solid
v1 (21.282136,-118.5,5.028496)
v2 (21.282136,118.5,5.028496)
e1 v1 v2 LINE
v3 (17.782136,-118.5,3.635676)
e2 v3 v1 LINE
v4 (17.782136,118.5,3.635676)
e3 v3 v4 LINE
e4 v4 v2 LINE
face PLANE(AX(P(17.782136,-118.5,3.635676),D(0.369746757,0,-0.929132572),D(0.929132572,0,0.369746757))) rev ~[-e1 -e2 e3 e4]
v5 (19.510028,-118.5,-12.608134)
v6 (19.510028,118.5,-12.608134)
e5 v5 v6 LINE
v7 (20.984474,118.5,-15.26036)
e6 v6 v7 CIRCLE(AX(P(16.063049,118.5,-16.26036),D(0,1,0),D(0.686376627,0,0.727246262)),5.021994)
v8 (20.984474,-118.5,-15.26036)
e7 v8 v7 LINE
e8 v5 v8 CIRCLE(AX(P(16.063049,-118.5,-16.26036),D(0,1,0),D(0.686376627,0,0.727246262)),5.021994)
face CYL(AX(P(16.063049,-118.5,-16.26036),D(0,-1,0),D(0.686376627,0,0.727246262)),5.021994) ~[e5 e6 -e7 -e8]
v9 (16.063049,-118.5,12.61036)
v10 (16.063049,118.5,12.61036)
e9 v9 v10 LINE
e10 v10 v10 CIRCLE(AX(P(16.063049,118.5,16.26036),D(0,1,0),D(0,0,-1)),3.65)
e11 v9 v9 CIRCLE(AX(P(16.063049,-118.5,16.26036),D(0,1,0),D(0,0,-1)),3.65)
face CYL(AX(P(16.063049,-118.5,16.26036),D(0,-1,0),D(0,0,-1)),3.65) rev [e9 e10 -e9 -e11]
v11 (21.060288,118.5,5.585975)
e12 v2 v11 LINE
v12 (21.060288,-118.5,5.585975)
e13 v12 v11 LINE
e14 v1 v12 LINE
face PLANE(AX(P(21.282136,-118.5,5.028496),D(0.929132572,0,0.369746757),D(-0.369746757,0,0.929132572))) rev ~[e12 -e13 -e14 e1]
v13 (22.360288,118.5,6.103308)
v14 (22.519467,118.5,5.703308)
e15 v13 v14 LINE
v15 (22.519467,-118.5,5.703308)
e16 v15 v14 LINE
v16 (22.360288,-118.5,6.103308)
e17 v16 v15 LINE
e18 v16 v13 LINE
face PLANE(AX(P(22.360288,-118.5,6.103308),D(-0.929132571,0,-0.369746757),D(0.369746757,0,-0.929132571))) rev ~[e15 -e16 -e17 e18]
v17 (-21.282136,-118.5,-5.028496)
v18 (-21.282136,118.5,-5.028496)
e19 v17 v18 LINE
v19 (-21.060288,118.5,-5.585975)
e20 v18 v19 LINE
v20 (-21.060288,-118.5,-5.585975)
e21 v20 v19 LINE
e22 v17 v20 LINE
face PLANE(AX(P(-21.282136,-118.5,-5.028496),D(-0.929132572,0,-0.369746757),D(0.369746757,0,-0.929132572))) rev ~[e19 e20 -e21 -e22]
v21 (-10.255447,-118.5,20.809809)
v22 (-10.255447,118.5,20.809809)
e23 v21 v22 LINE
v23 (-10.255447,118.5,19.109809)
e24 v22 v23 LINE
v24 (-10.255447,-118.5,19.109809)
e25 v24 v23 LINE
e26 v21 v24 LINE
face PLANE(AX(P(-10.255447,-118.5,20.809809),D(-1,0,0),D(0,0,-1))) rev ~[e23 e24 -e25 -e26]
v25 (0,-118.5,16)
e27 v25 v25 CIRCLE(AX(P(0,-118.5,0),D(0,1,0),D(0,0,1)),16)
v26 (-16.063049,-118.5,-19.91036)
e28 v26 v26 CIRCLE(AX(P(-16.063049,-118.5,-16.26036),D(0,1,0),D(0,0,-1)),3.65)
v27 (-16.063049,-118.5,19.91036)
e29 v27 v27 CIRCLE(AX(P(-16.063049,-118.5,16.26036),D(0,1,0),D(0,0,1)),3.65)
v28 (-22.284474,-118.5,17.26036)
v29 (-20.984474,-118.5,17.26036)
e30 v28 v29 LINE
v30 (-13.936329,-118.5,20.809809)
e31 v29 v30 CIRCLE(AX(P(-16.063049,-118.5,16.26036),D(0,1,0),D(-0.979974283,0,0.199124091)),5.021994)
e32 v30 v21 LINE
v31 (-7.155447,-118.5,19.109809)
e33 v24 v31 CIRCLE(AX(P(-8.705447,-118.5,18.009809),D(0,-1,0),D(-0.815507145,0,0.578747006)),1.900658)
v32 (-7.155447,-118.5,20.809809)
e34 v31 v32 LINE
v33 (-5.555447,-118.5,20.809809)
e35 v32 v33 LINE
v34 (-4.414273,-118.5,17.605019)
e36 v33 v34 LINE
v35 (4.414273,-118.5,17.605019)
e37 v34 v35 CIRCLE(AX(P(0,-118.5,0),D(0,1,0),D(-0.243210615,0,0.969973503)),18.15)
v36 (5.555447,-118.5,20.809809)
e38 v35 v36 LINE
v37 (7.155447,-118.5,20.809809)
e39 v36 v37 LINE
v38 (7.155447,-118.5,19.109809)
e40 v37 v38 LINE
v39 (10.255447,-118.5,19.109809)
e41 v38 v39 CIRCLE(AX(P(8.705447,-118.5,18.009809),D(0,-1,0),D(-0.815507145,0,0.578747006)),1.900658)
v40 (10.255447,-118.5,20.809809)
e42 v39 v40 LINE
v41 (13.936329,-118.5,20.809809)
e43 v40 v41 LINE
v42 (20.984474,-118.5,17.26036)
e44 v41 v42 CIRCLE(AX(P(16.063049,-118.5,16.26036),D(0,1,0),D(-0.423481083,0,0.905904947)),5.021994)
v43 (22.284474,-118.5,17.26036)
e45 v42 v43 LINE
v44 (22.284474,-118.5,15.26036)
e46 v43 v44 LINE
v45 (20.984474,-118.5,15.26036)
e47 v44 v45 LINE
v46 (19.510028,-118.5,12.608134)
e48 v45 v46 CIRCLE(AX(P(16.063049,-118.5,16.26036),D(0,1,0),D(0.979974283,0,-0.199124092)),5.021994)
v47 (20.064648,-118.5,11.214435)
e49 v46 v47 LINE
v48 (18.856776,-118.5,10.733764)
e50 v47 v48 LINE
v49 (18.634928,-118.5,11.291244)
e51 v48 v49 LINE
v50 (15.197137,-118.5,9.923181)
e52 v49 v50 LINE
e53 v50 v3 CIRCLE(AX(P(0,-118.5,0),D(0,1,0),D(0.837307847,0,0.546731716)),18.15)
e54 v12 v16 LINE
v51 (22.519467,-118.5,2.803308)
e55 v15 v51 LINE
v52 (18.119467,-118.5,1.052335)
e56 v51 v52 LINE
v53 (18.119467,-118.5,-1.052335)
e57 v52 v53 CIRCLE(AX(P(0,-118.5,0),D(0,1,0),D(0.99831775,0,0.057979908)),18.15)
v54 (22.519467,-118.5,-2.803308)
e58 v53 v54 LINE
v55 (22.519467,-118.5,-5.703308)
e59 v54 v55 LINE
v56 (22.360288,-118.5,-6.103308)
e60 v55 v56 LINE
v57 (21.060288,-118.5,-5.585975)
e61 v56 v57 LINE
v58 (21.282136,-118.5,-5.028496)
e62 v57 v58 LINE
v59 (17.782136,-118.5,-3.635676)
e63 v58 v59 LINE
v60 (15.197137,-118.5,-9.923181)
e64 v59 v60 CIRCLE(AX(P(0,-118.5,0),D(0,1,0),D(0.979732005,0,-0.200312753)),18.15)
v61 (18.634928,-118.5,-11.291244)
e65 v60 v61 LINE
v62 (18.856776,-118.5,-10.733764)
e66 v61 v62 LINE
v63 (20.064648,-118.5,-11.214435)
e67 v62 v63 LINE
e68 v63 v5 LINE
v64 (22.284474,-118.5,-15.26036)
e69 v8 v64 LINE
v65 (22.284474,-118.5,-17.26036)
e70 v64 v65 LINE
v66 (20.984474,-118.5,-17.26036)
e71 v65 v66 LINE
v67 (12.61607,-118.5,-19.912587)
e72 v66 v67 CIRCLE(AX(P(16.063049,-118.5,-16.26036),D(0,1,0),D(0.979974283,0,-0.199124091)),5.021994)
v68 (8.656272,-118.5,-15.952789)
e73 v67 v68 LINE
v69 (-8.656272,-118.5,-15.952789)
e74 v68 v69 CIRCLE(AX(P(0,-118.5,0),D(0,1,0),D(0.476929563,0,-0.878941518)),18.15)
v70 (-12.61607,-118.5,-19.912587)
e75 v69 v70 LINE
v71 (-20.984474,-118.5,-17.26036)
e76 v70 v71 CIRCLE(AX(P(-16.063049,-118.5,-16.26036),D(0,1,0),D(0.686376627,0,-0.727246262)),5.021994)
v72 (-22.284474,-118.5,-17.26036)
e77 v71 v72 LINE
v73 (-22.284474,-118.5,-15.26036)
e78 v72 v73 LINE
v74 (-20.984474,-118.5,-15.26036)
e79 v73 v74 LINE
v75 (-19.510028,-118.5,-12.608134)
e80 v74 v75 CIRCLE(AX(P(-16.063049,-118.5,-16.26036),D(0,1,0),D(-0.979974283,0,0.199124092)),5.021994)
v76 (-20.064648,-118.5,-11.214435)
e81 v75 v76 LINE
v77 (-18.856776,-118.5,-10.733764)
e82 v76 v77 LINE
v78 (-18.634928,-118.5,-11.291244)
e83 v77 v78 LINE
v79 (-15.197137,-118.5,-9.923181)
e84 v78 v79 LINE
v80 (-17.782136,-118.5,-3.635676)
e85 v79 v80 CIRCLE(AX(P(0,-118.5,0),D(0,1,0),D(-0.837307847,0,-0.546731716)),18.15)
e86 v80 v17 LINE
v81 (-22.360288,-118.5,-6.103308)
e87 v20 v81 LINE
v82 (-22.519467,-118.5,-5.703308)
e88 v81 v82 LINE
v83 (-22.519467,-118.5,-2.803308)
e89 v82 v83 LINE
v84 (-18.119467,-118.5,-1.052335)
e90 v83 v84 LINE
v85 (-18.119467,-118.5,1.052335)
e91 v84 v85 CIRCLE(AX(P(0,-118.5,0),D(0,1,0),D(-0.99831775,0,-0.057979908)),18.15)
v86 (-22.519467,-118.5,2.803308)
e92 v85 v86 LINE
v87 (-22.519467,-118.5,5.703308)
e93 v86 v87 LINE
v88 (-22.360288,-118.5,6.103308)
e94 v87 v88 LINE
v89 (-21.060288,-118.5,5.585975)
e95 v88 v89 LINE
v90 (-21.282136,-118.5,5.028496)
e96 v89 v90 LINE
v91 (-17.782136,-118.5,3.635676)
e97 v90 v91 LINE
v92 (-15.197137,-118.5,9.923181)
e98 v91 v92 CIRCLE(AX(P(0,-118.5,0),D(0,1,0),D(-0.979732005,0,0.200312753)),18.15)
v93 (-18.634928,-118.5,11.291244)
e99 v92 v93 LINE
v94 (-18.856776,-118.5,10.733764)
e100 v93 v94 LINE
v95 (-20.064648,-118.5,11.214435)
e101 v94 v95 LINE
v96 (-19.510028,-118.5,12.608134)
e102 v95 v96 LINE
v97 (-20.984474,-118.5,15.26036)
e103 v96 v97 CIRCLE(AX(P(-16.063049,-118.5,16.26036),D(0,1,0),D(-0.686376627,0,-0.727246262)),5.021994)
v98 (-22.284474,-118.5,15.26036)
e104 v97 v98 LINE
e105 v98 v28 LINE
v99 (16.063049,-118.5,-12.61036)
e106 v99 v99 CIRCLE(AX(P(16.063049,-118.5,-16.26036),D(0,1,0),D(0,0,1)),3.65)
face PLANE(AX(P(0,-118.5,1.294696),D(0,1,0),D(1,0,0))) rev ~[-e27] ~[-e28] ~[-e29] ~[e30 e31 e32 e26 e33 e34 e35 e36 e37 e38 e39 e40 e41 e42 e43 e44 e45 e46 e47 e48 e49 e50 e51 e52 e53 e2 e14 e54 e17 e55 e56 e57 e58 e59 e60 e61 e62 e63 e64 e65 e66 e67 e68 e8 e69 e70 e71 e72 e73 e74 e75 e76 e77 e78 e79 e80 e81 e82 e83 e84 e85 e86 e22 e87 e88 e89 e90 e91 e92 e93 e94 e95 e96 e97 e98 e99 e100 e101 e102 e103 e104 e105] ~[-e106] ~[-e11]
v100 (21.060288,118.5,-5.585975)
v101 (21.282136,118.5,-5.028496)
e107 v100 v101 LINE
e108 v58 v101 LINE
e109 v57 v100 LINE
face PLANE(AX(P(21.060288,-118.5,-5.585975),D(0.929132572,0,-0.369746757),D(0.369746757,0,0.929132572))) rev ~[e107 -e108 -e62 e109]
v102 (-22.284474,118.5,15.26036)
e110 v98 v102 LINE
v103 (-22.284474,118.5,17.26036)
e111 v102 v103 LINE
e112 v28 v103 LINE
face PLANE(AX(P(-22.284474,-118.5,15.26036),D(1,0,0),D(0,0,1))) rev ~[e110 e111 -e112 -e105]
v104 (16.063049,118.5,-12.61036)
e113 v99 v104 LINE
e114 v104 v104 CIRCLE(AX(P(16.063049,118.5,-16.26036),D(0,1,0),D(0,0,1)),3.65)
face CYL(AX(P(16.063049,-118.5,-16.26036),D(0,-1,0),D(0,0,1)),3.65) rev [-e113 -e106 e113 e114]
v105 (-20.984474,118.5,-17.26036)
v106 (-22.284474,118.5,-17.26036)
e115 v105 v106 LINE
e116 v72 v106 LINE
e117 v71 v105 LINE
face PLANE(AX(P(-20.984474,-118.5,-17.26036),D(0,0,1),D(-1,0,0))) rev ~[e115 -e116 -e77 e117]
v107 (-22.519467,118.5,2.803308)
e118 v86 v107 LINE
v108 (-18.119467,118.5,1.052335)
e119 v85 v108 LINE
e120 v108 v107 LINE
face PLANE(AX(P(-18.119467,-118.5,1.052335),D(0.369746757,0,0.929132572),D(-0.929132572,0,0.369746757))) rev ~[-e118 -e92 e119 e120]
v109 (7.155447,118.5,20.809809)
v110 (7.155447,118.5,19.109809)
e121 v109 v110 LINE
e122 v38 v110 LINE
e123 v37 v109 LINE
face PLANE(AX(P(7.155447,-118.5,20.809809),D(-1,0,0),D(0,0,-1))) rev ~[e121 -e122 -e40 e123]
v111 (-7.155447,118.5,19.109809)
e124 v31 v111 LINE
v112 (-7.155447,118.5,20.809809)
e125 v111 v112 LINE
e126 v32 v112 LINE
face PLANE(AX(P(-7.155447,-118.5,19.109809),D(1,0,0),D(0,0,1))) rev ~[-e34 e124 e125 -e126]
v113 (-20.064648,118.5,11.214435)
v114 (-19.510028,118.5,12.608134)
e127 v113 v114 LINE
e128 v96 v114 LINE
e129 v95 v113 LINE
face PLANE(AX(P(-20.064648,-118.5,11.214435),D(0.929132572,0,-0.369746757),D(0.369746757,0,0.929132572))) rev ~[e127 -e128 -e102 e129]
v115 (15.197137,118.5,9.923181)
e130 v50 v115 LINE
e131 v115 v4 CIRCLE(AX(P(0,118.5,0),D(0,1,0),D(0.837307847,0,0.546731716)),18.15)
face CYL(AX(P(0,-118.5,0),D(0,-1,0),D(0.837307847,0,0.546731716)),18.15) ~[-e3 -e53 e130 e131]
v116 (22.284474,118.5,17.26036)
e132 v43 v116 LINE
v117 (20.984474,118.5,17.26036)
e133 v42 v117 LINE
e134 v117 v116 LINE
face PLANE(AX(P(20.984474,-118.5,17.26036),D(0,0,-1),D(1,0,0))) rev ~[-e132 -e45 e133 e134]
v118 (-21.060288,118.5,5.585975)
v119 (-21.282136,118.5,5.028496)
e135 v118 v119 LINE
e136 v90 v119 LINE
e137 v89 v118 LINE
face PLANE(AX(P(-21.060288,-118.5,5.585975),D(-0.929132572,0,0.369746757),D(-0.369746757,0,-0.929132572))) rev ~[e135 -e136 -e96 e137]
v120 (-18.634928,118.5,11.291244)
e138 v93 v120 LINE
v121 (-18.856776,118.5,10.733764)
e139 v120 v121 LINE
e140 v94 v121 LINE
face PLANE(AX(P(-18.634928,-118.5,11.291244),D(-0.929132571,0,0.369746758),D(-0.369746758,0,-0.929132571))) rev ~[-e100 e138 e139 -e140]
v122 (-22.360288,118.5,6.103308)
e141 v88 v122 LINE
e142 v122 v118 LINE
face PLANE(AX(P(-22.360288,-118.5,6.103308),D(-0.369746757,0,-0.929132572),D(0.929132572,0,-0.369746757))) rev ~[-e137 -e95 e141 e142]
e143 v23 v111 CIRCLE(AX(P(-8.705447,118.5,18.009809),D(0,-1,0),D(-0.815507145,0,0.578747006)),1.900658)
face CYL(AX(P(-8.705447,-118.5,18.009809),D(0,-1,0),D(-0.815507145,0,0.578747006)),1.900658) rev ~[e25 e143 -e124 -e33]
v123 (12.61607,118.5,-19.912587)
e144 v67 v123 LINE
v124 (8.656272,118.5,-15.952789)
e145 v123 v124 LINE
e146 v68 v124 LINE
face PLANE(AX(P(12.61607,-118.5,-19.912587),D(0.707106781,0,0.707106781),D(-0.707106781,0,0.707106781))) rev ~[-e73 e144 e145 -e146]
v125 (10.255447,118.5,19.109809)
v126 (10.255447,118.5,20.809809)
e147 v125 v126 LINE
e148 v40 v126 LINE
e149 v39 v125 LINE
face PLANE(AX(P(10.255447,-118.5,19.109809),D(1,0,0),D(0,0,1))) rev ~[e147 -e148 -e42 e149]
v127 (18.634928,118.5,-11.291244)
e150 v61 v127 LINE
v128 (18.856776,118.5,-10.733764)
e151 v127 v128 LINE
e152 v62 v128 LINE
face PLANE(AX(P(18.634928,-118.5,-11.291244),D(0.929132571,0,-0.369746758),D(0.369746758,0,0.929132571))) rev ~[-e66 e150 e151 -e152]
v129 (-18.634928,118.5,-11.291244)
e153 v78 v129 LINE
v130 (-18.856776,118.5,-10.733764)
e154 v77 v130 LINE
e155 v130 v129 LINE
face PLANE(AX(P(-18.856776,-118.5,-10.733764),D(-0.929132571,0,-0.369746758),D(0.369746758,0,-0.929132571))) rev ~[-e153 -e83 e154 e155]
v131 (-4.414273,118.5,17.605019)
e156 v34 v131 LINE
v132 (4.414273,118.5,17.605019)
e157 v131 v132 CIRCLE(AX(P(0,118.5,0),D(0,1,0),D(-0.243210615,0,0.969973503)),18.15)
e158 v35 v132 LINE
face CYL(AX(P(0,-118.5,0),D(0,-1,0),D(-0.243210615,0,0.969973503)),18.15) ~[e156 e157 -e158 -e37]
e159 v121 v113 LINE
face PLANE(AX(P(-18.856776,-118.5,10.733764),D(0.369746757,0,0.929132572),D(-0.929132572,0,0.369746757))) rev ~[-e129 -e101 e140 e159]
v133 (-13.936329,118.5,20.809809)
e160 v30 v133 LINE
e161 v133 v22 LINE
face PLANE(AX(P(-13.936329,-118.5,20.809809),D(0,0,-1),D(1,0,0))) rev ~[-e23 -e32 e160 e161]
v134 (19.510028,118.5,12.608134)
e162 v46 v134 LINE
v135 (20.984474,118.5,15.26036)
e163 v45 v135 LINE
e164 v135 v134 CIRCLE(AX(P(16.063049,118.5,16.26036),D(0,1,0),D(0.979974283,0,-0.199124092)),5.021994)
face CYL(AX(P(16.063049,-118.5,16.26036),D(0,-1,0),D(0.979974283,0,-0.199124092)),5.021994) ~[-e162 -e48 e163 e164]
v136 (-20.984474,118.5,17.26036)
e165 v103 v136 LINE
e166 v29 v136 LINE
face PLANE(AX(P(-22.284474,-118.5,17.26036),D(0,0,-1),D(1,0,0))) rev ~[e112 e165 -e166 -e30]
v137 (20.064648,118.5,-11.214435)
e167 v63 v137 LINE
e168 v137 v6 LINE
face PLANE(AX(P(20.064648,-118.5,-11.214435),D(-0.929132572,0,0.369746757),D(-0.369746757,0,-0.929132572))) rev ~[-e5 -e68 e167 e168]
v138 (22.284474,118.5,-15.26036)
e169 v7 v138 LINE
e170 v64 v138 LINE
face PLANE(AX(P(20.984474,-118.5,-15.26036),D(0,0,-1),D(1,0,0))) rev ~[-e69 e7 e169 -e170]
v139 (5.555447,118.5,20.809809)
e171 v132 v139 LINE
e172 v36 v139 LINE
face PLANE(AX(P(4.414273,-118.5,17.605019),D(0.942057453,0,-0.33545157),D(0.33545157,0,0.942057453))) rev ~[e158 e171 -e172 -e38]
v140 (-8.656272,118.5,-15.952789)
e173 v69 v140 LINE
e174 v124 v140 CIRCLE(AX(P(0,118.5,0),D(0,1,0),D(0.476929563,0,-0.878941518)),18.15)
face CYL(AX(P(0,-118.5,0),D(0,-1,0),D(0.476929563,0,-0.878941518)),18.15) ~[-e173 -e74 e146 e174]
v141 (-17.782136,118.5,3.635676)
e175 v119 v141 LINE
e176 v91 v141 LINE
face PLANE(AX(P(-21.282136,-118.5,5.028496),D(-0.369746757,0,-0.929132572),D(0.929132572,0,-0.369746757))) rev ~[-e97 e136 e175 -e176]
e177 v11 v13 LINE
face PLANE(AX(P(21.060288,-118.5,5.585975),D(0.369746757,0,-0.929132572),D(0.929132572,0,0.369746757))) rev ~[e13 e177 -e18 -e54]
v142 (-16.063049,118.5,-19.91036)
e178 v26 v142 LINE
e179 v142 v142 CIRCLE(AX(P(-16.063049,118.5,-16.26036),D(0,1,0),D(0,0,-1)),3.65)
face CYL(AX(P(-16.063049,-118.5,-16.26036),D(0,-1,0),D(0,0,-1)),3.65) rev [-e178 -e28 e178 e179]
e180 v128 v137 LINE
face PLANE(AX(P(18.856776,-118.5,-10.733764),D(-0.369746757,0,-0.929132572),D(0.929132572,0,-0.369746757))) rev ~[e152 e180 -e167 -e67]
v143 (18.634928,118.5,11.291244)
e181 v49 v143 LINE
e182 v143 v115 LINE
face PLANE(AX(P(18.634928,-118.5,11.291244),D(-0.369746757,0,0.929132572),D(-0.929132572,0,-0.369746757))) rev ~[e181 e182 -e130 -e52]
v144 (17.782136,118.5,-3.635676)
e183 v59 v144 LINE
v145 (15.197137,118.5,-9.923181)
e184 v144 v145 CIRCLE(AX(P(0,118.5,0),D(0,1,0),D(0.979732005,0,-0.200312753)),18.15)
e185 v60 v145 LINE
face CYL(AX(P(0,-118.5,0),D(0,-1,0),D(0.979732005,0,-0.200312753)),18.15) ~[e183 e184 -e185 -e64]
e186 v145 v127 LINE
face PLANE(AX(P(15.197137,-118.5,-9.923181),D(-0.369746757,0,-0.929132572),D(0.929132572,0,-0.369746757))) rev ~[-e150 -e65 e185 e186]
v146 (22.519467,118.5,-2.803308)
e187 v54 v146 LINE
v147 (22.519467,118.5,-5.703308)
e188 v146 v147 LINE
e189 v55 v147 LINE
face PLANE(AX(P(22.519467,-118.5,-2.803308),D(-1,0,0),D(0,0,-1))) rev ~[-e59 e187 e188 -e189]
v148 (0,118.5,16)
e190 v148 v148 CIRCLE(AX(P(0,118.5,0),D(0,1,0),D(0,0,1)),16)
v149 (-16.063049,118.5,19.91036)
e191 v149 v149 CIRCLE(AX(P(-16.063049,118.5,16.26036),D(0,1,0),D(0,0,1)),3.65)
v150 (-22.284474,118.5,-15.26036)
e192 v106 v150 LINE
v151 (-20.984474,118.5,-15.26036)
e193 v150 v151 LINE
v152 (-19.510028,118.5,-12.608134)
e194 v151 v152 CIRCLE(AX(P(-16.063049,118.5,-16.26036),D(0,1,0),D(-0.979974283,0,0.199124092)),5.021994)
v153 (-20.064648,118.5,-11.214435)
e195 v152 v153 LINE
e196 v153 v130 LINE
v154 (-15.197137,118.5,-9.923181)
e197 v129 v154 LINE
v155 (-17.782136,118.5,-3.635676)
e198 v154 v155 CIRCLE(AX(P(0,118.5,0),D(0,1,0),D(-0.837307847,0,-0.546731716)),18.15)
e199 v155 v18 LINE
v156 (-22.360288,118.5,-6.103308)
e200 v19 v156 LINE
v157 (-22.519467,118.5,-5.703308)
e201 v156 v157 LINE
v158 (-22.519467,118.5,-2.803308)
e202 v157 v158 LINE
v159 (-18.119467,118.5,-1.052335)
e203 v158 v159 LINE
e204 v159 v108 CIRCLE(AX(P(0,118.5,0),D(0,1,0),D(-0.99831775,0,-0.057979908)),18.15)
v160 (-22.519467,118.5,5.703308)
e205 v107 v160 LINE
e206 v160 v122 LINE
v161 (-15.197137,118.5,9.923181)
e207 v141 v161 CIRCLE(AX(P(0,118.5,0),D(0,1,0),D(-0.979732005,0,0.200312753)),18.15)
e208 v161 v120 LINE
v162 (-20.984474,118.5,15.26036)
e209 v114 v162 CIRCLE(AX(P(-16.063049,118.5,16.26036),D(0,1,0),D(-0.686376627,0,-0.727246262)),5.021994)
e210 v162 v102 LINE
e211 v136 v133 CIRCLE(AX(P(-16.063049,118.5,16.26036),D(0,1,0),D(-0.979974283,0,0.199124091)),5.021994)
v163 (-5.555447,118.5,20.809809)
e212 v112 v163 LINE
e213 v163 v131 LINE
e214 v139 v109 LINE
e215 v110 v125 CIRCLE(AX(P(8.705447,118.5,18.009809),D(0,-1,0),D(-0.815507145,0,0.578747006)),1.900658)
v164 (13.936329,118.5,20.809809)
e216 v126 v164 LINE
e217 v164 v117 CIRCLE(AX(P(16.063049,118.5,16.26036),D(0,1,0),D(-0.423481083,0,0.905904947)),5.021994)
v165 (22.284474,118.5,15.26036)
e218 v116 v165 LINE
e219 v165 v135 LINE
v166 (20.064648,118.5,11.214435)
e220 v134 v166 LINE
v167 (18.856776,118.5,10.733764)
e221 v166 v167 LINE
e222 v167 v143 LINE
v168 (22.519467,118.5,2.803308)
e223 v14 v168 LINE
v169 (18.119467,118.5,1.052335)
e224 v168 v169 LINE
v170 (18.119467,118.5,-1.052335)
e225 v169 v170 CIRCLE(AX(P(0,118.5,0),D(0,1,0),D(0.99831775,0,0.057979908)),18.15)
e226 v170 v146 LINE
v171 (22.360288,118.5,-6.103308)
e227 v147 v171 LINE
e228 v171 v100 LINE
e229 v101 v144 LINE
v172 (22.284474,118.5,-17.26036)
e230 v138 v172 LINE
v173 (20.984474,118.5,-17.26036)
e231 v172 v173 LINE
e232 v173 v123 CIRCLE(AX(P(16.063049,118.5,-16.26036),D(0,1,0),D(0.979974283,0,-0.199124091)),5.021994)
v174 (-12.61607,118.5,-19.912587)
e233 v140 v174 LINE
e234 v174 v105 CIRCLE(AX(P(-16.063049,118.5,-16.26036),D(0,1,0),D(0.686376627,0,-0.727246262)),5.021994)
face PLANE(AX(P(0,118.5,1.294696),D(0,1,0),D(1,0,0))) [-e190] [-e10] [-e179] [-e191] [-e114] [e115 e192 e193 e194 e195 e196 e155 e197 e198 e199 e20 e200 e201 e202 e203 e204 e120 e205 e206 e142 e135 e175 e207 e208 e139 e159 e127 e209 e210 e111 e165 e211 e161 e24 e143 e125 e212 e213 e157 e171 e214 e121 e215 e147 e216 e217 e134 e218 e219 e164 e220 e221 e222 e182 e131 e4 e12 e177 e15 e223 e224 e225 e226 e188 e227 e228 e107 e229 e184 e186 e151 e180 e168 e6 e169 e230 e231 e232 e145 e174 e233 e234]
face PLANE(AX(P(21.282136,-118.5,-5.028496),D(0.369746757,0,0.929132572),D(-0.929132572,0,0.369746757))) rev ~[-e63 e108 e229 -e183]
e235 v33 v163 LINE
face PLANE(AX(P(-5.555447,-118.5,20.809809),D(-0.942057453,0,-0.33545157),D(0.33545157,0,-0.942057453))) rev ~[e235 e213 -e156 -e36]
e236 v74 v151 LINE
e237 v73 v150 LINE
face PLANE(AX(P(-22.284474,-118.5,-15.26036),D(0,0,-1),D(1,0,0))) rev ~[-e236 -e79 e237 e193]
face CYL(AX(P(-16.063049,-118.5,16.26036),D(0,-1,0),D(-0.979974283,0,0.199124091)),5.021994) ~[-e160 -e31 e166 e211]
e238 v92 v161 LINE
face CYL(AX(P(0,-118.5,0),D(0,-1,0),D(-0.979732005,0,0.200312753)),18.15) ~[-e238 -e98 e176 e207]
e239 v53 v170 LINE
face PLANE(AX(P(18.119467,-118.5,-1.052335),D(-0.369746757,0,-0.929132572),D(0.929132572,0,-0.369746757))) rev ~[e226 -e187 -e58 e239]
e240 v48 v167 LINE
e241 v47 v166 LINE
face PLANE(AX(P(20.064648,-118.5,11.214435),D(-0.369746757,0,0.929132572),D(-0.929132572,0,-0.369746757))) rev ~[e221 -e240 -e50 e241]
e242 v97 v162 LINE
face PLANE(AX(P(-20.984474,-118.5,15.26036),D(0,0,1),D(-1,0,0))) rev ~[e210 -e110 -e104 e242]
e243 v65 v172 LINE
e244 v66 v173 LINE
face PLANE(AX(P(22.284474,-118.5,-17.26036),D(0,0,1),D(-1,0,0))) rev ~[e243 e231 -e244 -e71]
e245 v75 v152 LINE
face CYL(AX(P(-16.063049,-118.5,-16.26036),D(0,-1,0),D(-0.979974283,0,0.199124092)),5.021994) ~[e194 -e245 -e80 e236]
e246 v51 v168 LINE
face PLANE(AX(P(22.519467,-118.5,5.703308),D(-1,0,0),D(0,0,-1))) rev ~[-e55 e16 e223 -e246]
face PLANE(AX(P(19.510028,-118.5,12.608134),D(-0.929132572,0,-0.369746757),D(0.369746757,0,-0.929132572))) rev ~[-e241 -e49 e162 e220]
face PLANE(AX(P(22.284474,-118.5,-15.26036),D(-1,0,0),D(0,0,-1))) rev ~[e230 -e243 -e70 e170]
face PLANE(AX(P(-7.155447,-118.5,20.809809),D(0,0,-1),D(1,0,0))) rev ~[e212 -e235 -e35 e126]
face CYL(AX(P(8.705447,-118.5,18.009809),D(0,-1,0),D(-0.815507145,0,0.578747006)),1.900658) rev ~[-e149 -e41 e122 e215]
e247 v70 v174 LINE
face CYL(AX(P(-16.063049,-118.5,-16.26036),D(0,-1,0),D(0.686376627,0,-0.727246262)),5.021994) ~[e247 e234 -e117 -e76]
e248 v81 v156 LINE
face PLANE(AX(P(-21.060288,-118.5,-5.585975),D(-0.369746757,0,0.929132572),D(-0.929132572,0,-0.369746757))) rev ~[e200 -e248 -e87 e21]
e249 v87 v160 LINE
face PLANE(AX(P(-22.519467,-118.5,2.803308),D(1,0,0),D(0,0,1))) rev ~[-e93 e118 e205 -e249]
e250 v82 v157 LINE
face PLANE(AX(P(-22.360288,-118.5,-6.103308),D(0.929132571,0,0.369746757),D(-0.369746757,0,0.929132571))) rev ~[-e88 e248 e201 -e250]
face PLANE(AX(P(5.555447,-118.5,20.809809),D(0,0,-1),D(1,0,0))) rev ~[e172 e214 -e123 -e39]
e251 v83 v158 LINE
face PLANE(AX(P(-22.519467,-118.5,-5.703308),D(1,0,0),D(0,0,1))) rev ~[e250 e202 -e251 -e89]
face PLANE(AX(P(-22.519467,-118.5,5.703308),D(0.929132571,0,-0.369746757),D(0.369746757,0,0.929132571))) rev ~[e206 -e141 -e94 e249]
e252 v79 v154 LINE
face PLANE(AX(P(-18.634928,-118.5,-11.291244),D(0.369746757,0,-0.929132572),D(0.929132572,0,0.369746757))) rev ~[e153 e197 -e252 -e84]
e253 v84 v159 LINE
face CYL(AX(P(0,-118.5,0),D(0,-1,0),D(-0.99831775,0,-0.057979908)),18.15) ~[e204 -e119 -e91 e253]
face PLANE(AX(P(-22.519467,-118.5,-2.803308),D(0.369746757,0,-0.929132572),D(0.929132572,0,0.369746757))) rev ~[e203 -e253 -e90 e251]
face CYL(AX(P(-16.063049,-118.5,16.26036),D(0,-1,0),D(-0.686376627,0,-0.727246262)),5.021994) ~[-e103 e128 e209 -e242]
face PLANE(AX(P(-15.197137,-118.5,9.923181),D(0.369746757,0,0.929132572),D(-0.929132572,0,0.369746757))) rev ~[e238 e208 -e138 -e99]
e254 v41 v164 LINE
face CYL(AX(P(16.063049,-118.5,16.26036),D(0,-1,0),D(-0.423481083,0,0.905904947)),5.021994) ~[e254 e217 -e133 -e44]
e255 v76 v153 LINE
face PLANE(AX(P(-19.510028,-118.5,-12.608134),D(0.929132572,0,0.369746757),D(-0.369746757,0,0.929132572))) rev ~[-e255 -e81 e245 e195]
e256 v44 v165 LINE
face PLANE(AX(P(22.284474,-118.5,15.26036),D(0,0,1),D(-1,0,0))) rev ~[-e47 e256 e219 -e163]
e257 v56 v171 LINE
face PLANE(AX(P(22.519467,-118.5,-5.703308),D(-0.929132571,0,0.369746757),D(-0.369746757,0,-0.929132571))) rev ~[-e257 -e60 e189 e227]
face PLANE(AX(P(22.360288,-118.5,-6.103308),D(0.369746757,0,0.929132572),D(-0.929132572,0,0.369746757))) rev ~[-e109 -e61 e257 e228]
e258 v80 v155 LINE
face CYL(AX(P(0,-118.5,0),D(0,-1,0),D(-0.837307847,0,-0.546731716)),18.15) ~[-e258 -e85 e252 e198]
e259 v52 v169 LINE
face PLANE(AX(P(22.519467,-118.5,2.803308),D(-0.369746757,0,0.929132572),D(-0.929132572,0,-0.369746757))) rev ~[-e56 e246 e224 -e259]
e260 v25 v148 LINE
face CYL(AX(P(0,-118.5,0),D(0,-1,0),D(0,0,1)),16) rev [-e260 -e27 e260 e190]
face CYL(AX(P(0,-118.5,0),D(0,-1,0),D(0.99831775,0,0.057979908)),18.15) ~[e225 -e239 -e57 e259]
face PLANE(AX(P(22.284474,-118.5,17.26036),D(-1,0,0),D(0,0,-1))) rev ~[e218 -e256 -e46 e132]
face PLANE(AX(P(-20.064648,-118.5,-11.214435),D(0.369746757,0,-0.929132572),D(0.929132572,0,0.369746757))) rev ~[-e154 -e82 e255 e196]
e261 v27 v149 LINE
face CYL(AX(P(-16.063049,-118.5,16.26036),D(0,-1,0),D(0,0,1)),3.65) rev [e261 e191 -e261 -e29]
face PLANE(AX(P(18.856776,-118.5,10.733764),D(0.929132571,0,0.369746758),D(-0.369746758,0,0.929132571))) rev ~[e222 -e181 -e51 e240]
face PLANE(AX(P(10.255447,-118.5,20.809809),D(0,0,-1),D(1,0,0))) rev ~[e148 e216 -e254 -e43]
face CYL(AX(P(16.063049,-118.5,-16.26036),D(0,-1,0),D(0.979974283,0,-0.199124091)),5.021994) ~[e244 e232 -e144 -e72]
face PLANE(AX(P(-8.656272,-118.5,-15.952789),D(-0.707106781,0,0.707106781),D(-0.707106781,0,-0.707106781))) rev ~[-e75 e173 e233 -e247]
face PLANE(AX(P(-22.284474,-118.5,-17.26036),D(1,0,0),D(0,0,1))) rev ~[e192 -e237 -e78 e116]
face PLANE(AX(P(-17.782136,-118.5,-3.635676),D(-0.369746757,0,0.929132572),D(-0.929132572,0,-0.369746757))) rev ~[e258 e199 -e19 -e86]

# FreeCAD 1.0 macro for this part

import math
import FreeCAD as App
import Part
import Sketcher
from FreeCAD import Vector
Q = App.Units.Quantity

doc = App.newDocument("Part")
body = doc.addObject("PartDesign::Body", "Body")

sketch1 = doc.addObject("Sketcher::SketchObject", "Sketch")
body.addObject(sketch1)
sketch1.AttachmentSupport = (doc.XZ_Plane, [""])
sketch1.MapMode = "FlatFace"
sketch1.addGeometry(Part.LineSegment(Vector(22.52, -2.8, 0), Vector(22.52, -5.7, 0)), False)
sketch1.addGeometry(Part.LineSegment(Vector(22.52, -5.7, 0), Vector(22.36, -6.1, 0)), False)
sketch1.addGeometry(Part.LineSegment(Vector(22.36, -6.1, 0), Vector(21.06, -5.59, 0)), False)
sketch1.addGeometry(Part.LineSegment(Vector(21.06, -5.59, 0), Vector(21.28, -5.03, 0)), False)
sketch1.addGeometry(Part.LineSegment(Vector(21.28, -5.03, 0), Vector(17.78, -3.64, 0)), False)
sketch1.addGeometry(Part.ArcOfCircle(Part.Circle(Vector(0, 0, 0), Vector(0, 0, 1), 18.15), math.radians(-33), math.radians(-12)), False)
sketch1.addGeometry(Part.LineSegment(Vector(15.2, -9.92, 0), Vector(18.63, -11.29, 0)), False)
sketch1.addGeometry(Part.LineSegment(Vector(18.63, -11.29, 0), Vector(18.86, -10.73, 0)), False)
sketch1.addGeometry(Part.LineSegment(Vector(18.86, -10.73, 0), Vector(20.06, -11.21, 0)), False)
sketch1.addGeometry(Part.LineSegment(Vector(20.06, -11.21, 0), Vector(19.51, -12.61, 0)), False)
sketch1.addGeometry(Part.ArcOfCircle(Part.Circle(Vector(16.06, -16.26, 0), Vector(0, 0, 1), 5.02), math.radians(11), math.radians(47)), False)
sketch1.addGeometry(Part.LineSegment(Vector(20.98, -15.26, 0), Vector(22.28, -15.26, 0)), False)
sketch1.addGeometry(Part.LineSegment(Vector(22.28, -15.26, 0), Vector(22.28, -17.26, 0)), False)
sketch1.addGeometry(Part.LineSegment(Vector(22.28, -17.26, 0), Vector(20.98, -17.26, 0)), False)
sketch1.addGeometry(Part.ArcOfCircle(Part.Circle(Vector(16.06, -16.26, 0), Vector(0, 0, 1), 5.02), math.radians(-133), math.radians(-11)), False)
sketch1.addGeometry(Part.LineSegment(Vector(12.62, -19.91, 0), Vector(8.66, -15.95, 0)), False)
sketch1.addGeometry(Part.ArcOfCircle(Part.Circle(Vector(0, 0, 0), Vector(0, 0, 1), 18.15), math.radians(-118), math.radians(-62)), False)
sketch1.addGeometry(Part.LineSegment(Vector(-8.66, -15.95, 0), Vector(-12.62, -19.91, 0)), False)
sketch1.addGeometry(Part.ArcOfCircle(Part.Circle(Vector(-16.06, -16.26, 0), Vector(0, 0, 1), 5.02), math.radians(-169), math.radians(-47)), False)
sketch1.addGeometry(Part.LineSegment(Vector(-20.98, -17.26, 0), Vector(-22.28, -17.26, 0)), False)
sketch1.addGeometry(Part.LineSegment(Vector(-22.28, -17.26, 0), Vector(-22.28, -15.26, 0)), False)
sketch1.addGeometry(Part.LineSegment(Vector(-22.28, -15.26, 0), Vector(-20.98, -15.26, 0)), False)
sketch1.addGeometry(Part.ArcOfCircle(Part.Circle(Vector(-16.06, -16.26, 0), Vector(0, 0, 1), 5.02), math.radians(133), math.radians(169)), False)
sketch1.addGeometry(Part.LineSegment(Vector(-19.51, -12.61, 0), Vector(-20.06, -11.21, 0)), False)
sketch1.addGeometry(Part.LineSegment(Vector(-20.06, -11.21, 0), Vector(-18.86, -10.73, 0)), False)
sketch1.addGeometry(Part.LineSegment(Vector(-18.86, -10.73, 0), Vector(-18.63, -11.29, 0)), False)
sketch1.addGeometry(Part.LineSegment(Vector(-18.63, -11.29, 0), Vector(-15.2, -9.92, 0)), False)
sketch1.addGeometry(Part.ArcOfCircle(Part.Circle(Vector(0, 0, 0), Vector(0, 0, 1), 18.15), math.radians(-168), math.radians(-147)), False)
sketch1.addGeometry(Part.LineSegment(Vector(-17.78, -3.64, 0), Vector(-21.28, -5.03, 0)), False)
sketch1.addGeometry(Part.LineSegment(Vector(-21.28, -5.03, 0), Vector(-21.06, -5.59, 0)), False)
sketch1.addGeometry(Part.LineSegment(Vector(-21.06, -5.59, 0), Vector(-22.36, -6.1, 0)), False)
sketch1.addGeometry(Part.LineSegment(Vector(-22.36, -6.1, 0), Vector(-22.52, -5.7, 0)), False)
sketch1.addGeometry(Part.LineSegment(Vector(-22.52, -5.7, 0), Vector(-22.52, -2.8, 0)), False)
sketch1.addGeometry(Part.LineSegment(Vector(-22.52, -2.8, 0), Vector(-18.12, -1.05, 0)), False)
sketch1.addGeometry(Part.ArcOfCircle(Part.Circle(Vector(0, 0, 0), Vector(0, 0, 1), 18.15), math.radians(176.68), math.radians(183.32)), False)
sketch1.addGeometry(Part.LineSegment(Vector(-18.12, 1.05, 0), Vector(-22.52, 2.8, 0)), False)
sketch1.addGeometry(Part.LineSegment(Vector(-22.52, 2.8, 0), Vector(-22.52, 5.7, 0)), False)
sketch1.addGeometry(Part.LineSegment(Vector(-22.52, 5.7, 0), Vector(-22.36, 6.1, 0)), False)
sketch1.addGeometry(Part.LineSegment(Vector(-22.36, 6.1, 0), Vector(-21.06, 5.59, 0)), False)
sketch1.addGeometry(Part.LineSegment(Vector(-21.06, 5.59, 0), Vector(-21.28, 5.03, 0)), False)
sketch1.addGeometry(Part.LineSegment(Vector(-21.28, 5.03, 0), Vector(-17.78, 3.64, 0)), False)
sketch1.addGeometry(Part.ArcOfCircle(Part.Circle(Vector(0, 0, 0), Vector(0, 0, 1), 18.15), math.radians(147), math.radians(168)), False)
sketch1.addGeometry(Part.LineSegment(Vector(-15.2, 9.92, 0), Vector(-18.63, 11.29, 0)), False)
sketch1.addGeometry(Part.LineSegment(Vector(-18.63, 11.29, 0), Vector(-18.86, 10.73, 0)), False)
sketch1.addGeometry(Part.LineSegment(Vector(-18.86, 10.73, 0), Vector(-20.06, 11.21, 0)), False)
sketch1.addGeometry(Part.LineSegment(Vector(-20.06, 11.21, 0), Vector(-19.51, 12.61, 0)), False)
sketch1.addGeometry(Part.ArcOfCircle(Part.Circle(Vector(-16.06, 16.26, 0), Vector(0, 0, 1), 5.02), math.radians(-169), math.radians(-133)), False)
sketch1.addGeometry(Part.LineSegment(Vector(-20.98, 15.26, 0), Vector(-22.28, 15.26, 0)), False)
sketch1.addGeometry(Part.LineSegment(Vector(-22.28, 15.26, 0), Vector(-22.28, 17.26, 0)), False)
sketch1.addGeometry(Part.LineSegment(Vector(-22.28, 17.26, 0), Vector(-20.98, 17.26, 0)), False)
sketch1.addGeometry(Part.ArcOfCircle(Part.Circle(Vector(-16.06, 16.26, 0), Vector(0, 0, 1), 5.02), math.radians(65), math.radians(169)), False)
sketch1.addGeometry(Part.LineSegment(Vector(-13.94, 20.81, 0), Vector(-10.26, 20.81, 0)), False)
sketch1.addGeometry(Part.LineSegment(Vector(-10.26, 20.81, 0), Vector(-10.26, 19.11, 0)), False)
sketch1.addGeometry(Part.ArcOfCircle(Part.Circle(Vector(-8.71, 18.01, 0), Vector(0, 0, 1), 1.9), math.radians(145), math.radians(395)), False)
sketch1.addGeometry(Part.LineSegment(Vector(-7.16, 19.11, 0), Vector(-7.16, 20.81, 0)), False)
sketch1.addGeometry(Part.LineSegment(Vector(-7.16, 20.81, 0), Vector(-5.56, 20.81, 0)), False)
sketch1.addGeometry(Part.LineSegment(Vector(-5.56, 20.81, 0), Vector(-4.41, 17.61, 0)), False)
sketch1.addGeometry(Part.ArcOfCircle(Part.Circle(Vector(0, 0, 0), Vector(0, 0, 1), 18.15), math.radians(76), math.radians(104)), False)
sketch1.addGeometry(Part.LineSegment(Vector(4.41, 17.61, 0), Vector(5.56, 20.81, 0)), False)
sketch1.addGeometry(Part.LineSegment(Vector(5.56, 20.81, 0), Vector(7.16, 20.81, 0)), False)
sketch1.addGeometry(Part.LineSegment(Vector(7.16, 20.81, 0), Vector(7.16, 19.11, 0)), False)
sketch1.addGeometry(Part.ArcOfCircle(Part.Circle(Vector(8.71, 18.01, 0), Vector(0, 0, 1), 1.9), math.radians(145), math.radians(395)), False)
sketch1.addGeometry(Part.LineSegment(Vector(10.26, 19.11, 0), Vector(10.26, 20.81, 0)), False)
sketch1.addGeometry(Part.LineSegment(Vector(10.26, 20.81, 0), Vector(13.94, 20.81, 0)), False)
sketch1.addGeometry(Part.ArcOfCircle(Part.Circle(Vector(16.06, 16.26, 0), Vector(0, 0, 1), 5.02), math.radians(11), math.radians(115)), False)
sketch1.addGeometry(Part.LineSegment(Vector(20.98, 17.26, 0), Vector(22.28, 17.26, 0)), False)
sketch1.addGeometry(Part.LineSegment(Vector(22.28, 17.26, 0), Vector(22.28, 15.26, 0)), False)
sketch1.addGeometry(Part.LineSegment(Vector(22.28, 15.26, 0), Vector(20.98, 15.26, 0)), False)
sketch1.addGeometry(Part.ArcOfCircle(Part.Circle(Vector(16.06, 16.26, 0), Vector(0, 0, 1), 5.02), math.radians(-47), math.radians(-11)), False)
sketch1.addGeometry(Part.LineSegment(Vector(19.51, 12.61, 0), Vector(20.06, 11.21, 0)), False)
sketch1.addGeometry(Part.LineSegment(Vector(20.06, 11.21, 0), Vector(18.86, 10.73, 0)), False)
sketch1.addGeometry(Part.LineSegment(Vector(18.86, 10.73, 0), Vector(18.63, 11.29, 0)), False)
sketch1.addGeometry(Part.LineSegment(Vector(18.63, 11.29, 0), Vector(15.2, 9.92, 0)), False)
sketch1.addGeometry(Part.ArcOfCircle(Part.Circle(Vector(0, 0, 0), Vector(0, 0, 1), 18.15), math.radians(12), math.radians(33)), False)
sketch1.addGeometry(Part.LineSegment(Vector(17.78, 3.64, 0), Vector(21.28, 5.03, 0)), False)
sketch1.addGeometry(Part.LineSegment(Vector(21.28, 5.03, 0), Vector(21.06, 5.59, 0)), False)
sketch1.addGeometry(Part.LineSegment(Vector(21.06, 5.59, 0), Vector(22.36, 6.1, 0)), False)
sketch1.addGeometry(Part.LineSegment(Vector(22.36, 6.1, 0), Vector(22.52, 5.7, 0)), False)
sketch1.addGeometry(Part.LineSegment(Vector(22.52, 5.7, 0), Vector(22.52, 2.8, 0)), False)
sketch1.addGeometry(Part.LineSegment(Vector(22.52, 2.8, 0), Vector(18.12, 1.05, 0)), False)
sketch1.addGeometry(Part.ArcOfCircle(Part.Circle(Vector(0, 0, 0), Vector(0, 0, 1), 18.15), math.radians(-3.32), math.radians(3.32)), False)
sketch1.addGeometry(Part.LineSegment(Vector(18.12, -1.05, 0), Vector(22.52, -2.8, 0)), False)
sketch1.addGeometry(Part.Circle(Vector(-16.06, 16.26, 0), Vector(0, 0, 1), 3.65), False)
sketch1.addGeometry(Part.Circle(Vector(16.06, 16.26, 0), Vector(0, 0, 1), 3.65), False)
sketch1.addGeometry(Part.Circle(Vector(-16.06, -16.26, 0), Vector(0, 0, 1), 3.65), False)
sketch1.addGeometry(Part.Circle(Vector(0, 0, 0), Vector(0, 0, 1), 16), False)
sketch1.addGeometry(Part.Circle(Vector(16.06, -16.26, 0), Vector(0, 0, 1), 3.65), False)
sketch1.addConstraint(Sketcher.Constraint("Coincident", 0, 2, 1, 1))
sketch1.addConstraint(Sketcher.Constraint("Coincident", 1, 2, 2, 1))
sketch1.addConstraint(Sketcher.Constraint("Coincident", 2, 2, 3, 1))
sketch1.addConstraint(Sketcher.Constraint("Coincident", 3, 2, 4, 1))
sketch1.addConstraint(Sketcher.Constraint("Coincident", 4, 2, 5, 2))
sketch1.addConstraint(Sketcher.Constraint("Coincident", 5, 1, 6, 1))
sketch1.addConstraint(Sketcher.Constraint("Coincident", 6, 2, 7, 1))
sketch1.addConstraint(Sketcher.Constraint("Coincident", 7, 2, 8, 1))
sketch1.addConstraint(Sketcher.Constraint("Coincident", 8, 2, 9, 1))
sketch1.addConstraint(Sketcher.Constraint("Coincident", 9, 2, 10, 2))
sketch1.addConstraint(Sketcher.Constraint("Coincident", 10, 1, 11, 1))
sketch1.addConstraint(Sketcher.Constraint("Coincident", 11, 2, 12, 1))
sketch1.addConstraint(Sketcher.Constraint("Coincident", 12, 2, 13, 1))
sketch1.addConstraint(Sketcher.Constraint("Coincident", 13, 2, 14, 2))
sketch1.addConstraint(Sketcher.Constraint("Coincident", 14, 1, 15, 1))
sketch1.addConstraint(Sketcher.Constraint("Coincident", 15, 2, 16, 2))
sketch1.addConstraint(Sketcher.Constraint("Coincident", 16, 1, 17, 1))
sketch1.addConstraint(Sketcher.Constraint("Coincident", 17, 2, 18, 2))
sketch1.addConstraint(Sketcher.Constraint("Coincident", 18, 1, 19, 1))
sketch1.addConstraint(Sketcher.Constraint("Coincident", 19, 2, 20, 1))
sketch1.addConstraint(Sketcher.Constraint("Coincident", 20, 2, 21, 1))
sketch1.addConstraint(Sketcher.Constraint("Coincident", 21, 2, 22, 2))
sketch1.addConstraint(Sketcher.Constraint("Coincident", 22, 1, 23, 1))
sketch1.addConstraint(Sketcher.Constraint("Coincident", 23, 2, 24, 1))
sketch1.addConstraint(Sketcher.Constraint("Coincident", 24, 2, 25, 1))
sketch1.addConstraint(Sketcher.Constraint("Coincident", 25, 2, 26, 1))
sketch1.addConstraint(Sketcher.Constraint("Coincident", 26, 2, 27, 2))
sketch1.addConstraint(Sketcher.Constraint("Coincident", 27, 1, 28, 1))
sketch1.addConstraint(Sketcher.Constraint("Coincident", 28, 2, 29, 1))
sketch1.addConstraint(Sketcher.Constraint("Coincident", 29, 2, 30, 1))
sketch1.addConstraint(Sketcher.Constraint("Coincident", 30, 2, 31, 1))
sketch1.addConstraint(Sketcher.Constraint("Coincident", 31, 2, 32, 1))
sketch1.addConstraint(Sketcher.Constraint("Coincident", 32, 2, 33, 1))
sketch1.addConstraint(Sketcher.Constraint("Coincident", 33, 2, 34, 2))
sketch1.addConstraint(Sketcher.Constraint("Coincident", 34, 1, 35, 1))
sketch1.addConstraint(Sketcher.Constraint("Coincident", 35, 2, 36, 1))
sketch1.addConstraint(Sketcher.Constraint("Coincident", 36, 2, 37, 1))
sketch1.addConstraint(Sketcher.Constraint("Coincident", 37, 2, 38, 1))
sketch1.addConstraint(Sketcher.Constraint("Coincident", 38, 2, 39, 1))
sketch1.addConstraint(Sketcher.Constraint("Coincident", 39, 2, 40, 1))
sketch1.addConstraint(Sketcher.Constraint("Coincident", 40, 2, 41, 2))
sketch1.addConstraint(Sketcher.Constraint("Coincident", 41, 1, 42, 1))
sketch1.addConstraint(Sketcher.Constraint("Coincident", 42, 2, 43, 1))
sketch1.addConstraint(Sketcher.Constraint("Coincident", 43, 2, 44, 1))
sketch1.addConstraint(Sketcher.Constraint("Coincident", 44, 2, 45, 1))
sketch1.addConstraint(Sketcher.Constraint("Coincident", 45, 2, 46, 2))
sketch1.addConstraint(Sketcher.Constraint("Coincident", 46, 1, 47, 1))
sketch1.addConstraint(Sketcher.Constraint("Coincident", 47, 2, 48, 1))
sketch1.addConstraint(Sketcher.Constraint("Coincident", 48, 2, 49, 1))
sketch1.addConstraint(Sketcher.Constraint("Coincident", 49, 2, 50, 2))
sketch1.addConstraint(Sketcher.Constraint("Coincident", 50, 1, 51, 1))
sketch1.addConstraint(Sketcher.Constraint("Coincident", 51, 2, 52, 1))
sketch1.addConstraint(Sketcher.Constraint("Coincident", 52, 2, 53, 1))
sketch1.addConstraint(Sketcher.Constraint("Coincident", 53, 2, 54, 1))
sketch1.addConstraint(Sketcher.Constraint("Coincident", 54, 2, 55, 1))
sketch1.addConstraint(Sketcher.Constraint("Coincident", 55, 2, 56, 1))
sketch1.addConstraint(Sketcher.Constraint("Coincident", 56, 2, 57, 2))
sketch1.addConstraint(Sketcher.Constraint("Coincident", 57, 1, 58, 1))
sketch1.addConstraint(Sketcher.Constraint("Coincident", 58, 2, 59, 1))
sketch1.addConstraint(Sketcher.Constraint("Coincident", 59, 2, 60, 1))
sketch1.addConstraint(Sketcher.Constraint("Coincident", 60, 2, 61, 1))
sketch1.addConstraint(Sketcher.Constraint("Coincident", 61, 2, 62, 1))
sketch1.addConstraint(Sketcher.Constraint("Coincident", 62, 2, 63, 1))
sketch1.addConstraint(Sketcher.Constraint("Coincident", 63, 2, 64, 2))
sketch1.addConstraint(Sketcher.Constraint("Coincident", 64, 1, 65, 1))
sketch1.addConstraint(Sketcher.Constraint("Coincident", 65, 2, 66, 1))
sketch1.addConstraint(Sketcher.Constraint("Coincident", 66, 2, 67, 1))
sketch1.addConstraint(Sketcher.Constraint("Coincident", 67, 2, 68, 2))
sketch1.addConstraint(Sketcher.Constraint("Coincident", 68, 1, 69, 1))
sketch1.addConstraint(Sketcher.Constraint("Coincident", 69, 2, 70, 1))
sketch1.addConstraint(Sketcher.Constraint("Coincident", 70, 2, 71, 1))
sketch1.addConstraint(Sketcher.Constraint("Coincident", 71, 2, 72, 1))
sketch1.addConstraint(Sketcher.Constraint("Coincident", 72, 2, 73, 2))
sketch1.addConstraint(Sketcher.Constraint("Coincident", 73, 1, 74, 1))
sketch1.addConstraint(Sketcher.Constraint("Coincident", 74, 2, 75, 1))
sketch1.addConstraint(Sketcher.Constraint("Coincident", 75, 2, 76, 1))
sketch1.addConstraint(Sketcher.Constraint("Coincident", 76, 2, 77, 1))
sketch1.addConstraint(Sketcher.Constraint("Coincident", 77, 2, 78, 1))
sketch1.addConstraint(Sketcher.Constraint("Coincident", 78, 2, 79, 1))
sketch1.addConstraint(Sketcher.Constraint("Coincident", 79, 2, 80, 2))
sketch1.addConstraint(Sketcher.Constraint("Coincident", 80, 1, 81, 1))
sketch1.addConstraint(Sketcher.Constraint("Coincident", 81, 2, 0, 1))
sketch1.addConstraint(Sketcher.Constraint("Vertical", 0))
sketch1.addConstraint(Sketcher.Constraint("Horizontal", 11))
sketch1.addConstraint(Sketcher.Constraint("Vertical", 12))
sketch1.addConstraint(Sketcher.Constraint("Horizontal", 13))
sketch1.addConstraint(Sketcher.Constraint("Horizontal", 19))
sketch1.addConstraint(Sketcher.Constraint("Vertical", 20))
sketch1.addConstraint(Sketcher.Constraint("Horizontal", 21))
sketch1.addConstraint(Sketcher.Constraint("Vertical", 32))
sketch1.addConstraint(Sketcher.Constraint("Vertical", 36))
sketch1.addConstraint(Sketcher.Constraint("Horizontal", 47))
sketch1.addConstraint(Sketcher.Constraint("Vertical", 48))
sketch1.addConstraint(Sketcher.Constraint("Horizontal", 49))
sketch1.addConstraint(Sketcher.Constraint("Horizontal", 51))
sketch1.addConstraint(Sketcher.Constraint("Vertical", 52))
sketch1.addConstraint(Sketcher.Constraint("Vertical", 54))
sketch1.addConstraint(Sketcher.Constraint("Horizontal", 55))
sketch1.addConstraint(Sketcher.Constraint("Horizontal", 59))
sketch1.addConstraint(Sketcher.Constraint("Vertical", 60))
sketch1.addConstraint(Sketcher.Constraint("Vertical", 62))
sketch1.addConstraint(Sketcher.Constraint("Horizontal", 63))
sketch1.addConstraint(Sketcher.Constraint("Horizontal", 65))
sketch1.addConstraint(Sketcher.Constraint("Vertical", 66))
sketch1.addConstraint(Sketcher.Constraint("Horizontal", 67))
sketch1.addConstraint(Sketcher.Constraint("Vertical", 78))
sketch1.addConstraint(Sketcher.Constraint("Coincident", 5, 3, -1, 1))
sketch1.addConstraint(Sketcher.Constraint("Coincident", 16, 3, -1, 1))
sketch1.addConstraint(Sketcher.Constraint("Coincident", 27, 3, -1, 1))
sketch1.addConstraint(Sketcher.Constraint("Coincident", 34, 3, -1, 1))
sketch1.addConstraint(Sketcher.Constraint("Coincident", 41, 3, -1, 1))
sketch1.addConstraint(Sketcher.Constraint("Coincident", 57, 3, -1, 1))
sketch1.addConstraint(Sketcher.Constraint("Coincident", 73, 3, -1, 1))
sketch1.addConstraint(Sketcher.Constraint("Coincident", 80, 3, -1, 1))
sketch1.addConstraint(Sketcher.Constraint("Coincident", 85, 3, -1, 1))
sketch1.addConstraint(Sketcher.Constraint("Coincident", 14, 3, 10, 3))
sketch1.addConstraint(Sketcher.Constraint("Coincident", 22, 3, 18, 3))
sketch1.addConstraint(Sketcher.Constraint("Coincident", 50, 3, 46, 3))
sketch1.addConstraint(Sketcher.Constraint("Coincident", 68, 3, 64, 3))
sketch1.addConstraint(Sketcher.Constraint("Coincident", 82, 3, 46, 3))
sketch1.addConstraint(Sketcher.Constraint("Coincident", 83, 3, 64, 3))
sketch1.addConstraint(Sketcher.Constraint("Coincident", 84, 3, 18, 3))
sketch1.addConstraint(Sketcher.Constraint("Coincident", 86, 3, 10, 3))
sketch1.addConstraint(Sketcher.Constraint("Equal", 10, 14))
sketch1.addConstraint(Sketcher.Constraint("Equal", 5, 16))
sketch1.addConstraint(Sketcher.Constraint("Equal", 14, 18))
sketch1.addConstraint(Sketcher.Constraint("Equal", 18, 22))
sketch1.addConstraint(Sketcher.Constraint("Equal", 16, 27))
sketch1.addConstraint(Sketcher.Constraint("Equal", 27, 34))
sketch1.addConstraint(Sketcher.Constraint("Equal", 34, 41))
sketch1.addConstraint(Sketcher.Constraint("Equal", 22, 46))
sketch1.addConstraint(Sketcher.Constraint("Equal", 46, 50))
sketch1.addConstraint(Sketcher.Constraint("Equal", 41, 57))
sketch1.addConstraint(Sketcher.Constraint("Equal", 53, 61))
sketch1.addConstraint(Sketcher.Constraint("Equal", 50, 64))
sketch1.addConstraint(Sketcher.Constraint("Equal", 64, 68))
sketch1.addConstraint(Sketcher.Constraint("Equal", 57, 73))
sketch1.addConstraint(Sketcher.Constraint("Equal", 73, 80))
sketch1.addConstraint(Sketcher.Constraint("Equal", 82, 83))
sketch1.addConstraint(Sketcher.Constraint("Equal", 83, 84))
sketch1.addConstraint(Sketcher.Constraint("Equal", 84, 86))
sketch1.addConstraint(Sketcher.Constraint("Symmetric", 10, 3, 46, 3, -1, 1))
sketch1.addConstraint(Sketcher.Constraint("Symmetric", 18, 3, 64, 3, -1, 1))
sketch1.addConstraint(Sketcher.Constraint("Symmetric", 0, 2, 36, 2, -1, 1))
sketch1.addConstraint(Sketcher.Constraint("Symmetric", 1, 2, 37, 2, -1, 1))
sketch1.addConstraint(Sketcher.Constraint("Symmetric", 2, 2, 38, 2, -1, 1))
sketch1.addConstraint(Sketcher.Constraint("Symmetric", 3, 2, 39, 2, -1, 1))
sketch1.addConstraint(Sketcher.Constraint("Symmetric", 6, 2, 42, 2, -1, 1))
sketch1.addConstraint(Sketcher.Constraint("Symmetric", 7, 2, 43, 2, -1, 1))
sketch1.addConstraint(Sketcher.Constraint("Symmetric", 8, 2, 44, 2, -1, 1))
sketch1.addConstraint(Sketcher.Constraint("Symmetric", 11, 2, 47, 2, -1, 1))
sketch1.addConstraint(Sketcher.Constraint("Symmetric", 19, 2, 65, 2, -1, 1))
sketch1.addConstraint(Sketcher.Constraint("Symmetric", 23, 2, 69, 2, -1, 1))
sketch1.addConstraint(Sketcher.Constraint("Symmetric", 24, 2, 70, 2, -1, 1))
sketch1.addConstraint(Sketcher.Constraint("Symmetric", 25, 2, 71, 2, -1, 1))
sketch1.addConstraint(Sketcher.Constraint("Symmetric", 28, 2, 74, 2, -1, 1))
sketch1.addConstraint(Sketcher.Constraint("Symmetric", 29, 2, 75, 2, -1, 1))
sketch1.addConstraint(Sketcher.Constraint("Symmetric", 30, 2, 76, 2, -1, 1))
sketch1.addConstraint(Sketcher.Constraint("Symmetric", 31, 2, 77, 2, -1, 1))
sketch1.addConstraint(Sketcher.Constraint("Symmetric", 10, 3, 18, 3, -2))
sketch1.addConstraint(Sketcher.Constraint("Symmetric", 53, 3, 61, 3, -2))
sketch1.addConstraint(Sketcher.Constraint("Symmetric", 12, 2, 19, 2, -2))
sketch1.addConstraint(Sketcher.Constraint("Symmetric", 8, 2, 23, 2, -2))
sketch1.addConstraint(Sketcher.Constraint("Symmetric", 7, 2, 24, 2, -2))
sketch1.addConstraint(Sketcher.Constraint("Symmetric", 6, 2, 25, 2, -2))
sketch1.addConstraint(Sketcher.Constraint("Symmetric", 3, 2, 28, 2, -2))
sketch1.addConstraint(Sketcher.Constraint("Symmetric", 2, 2, 29, 2, -2))
sketch1.addConstraint(Sketcher.Constraint("Symmetric", 1, 2, 30, 2, -2))
sketch1.addConstraint(Sketcher.Constraint("Symmetric", 0, 2, 31, 2, -2))
sketch1.addConstraint(Sketcher.Constraint("Symmetric", 55, 2, 58, 2, -2))
sketch1.addConstraint(Sketcher.Constraint("Symmetric", 51, 2, 62, 2, -2))
sketch1.addConstraint(Sketcher.Constraint("Perpendicular", 1, 2))
sketch1.addConstraint(Sketcher.Constraint("Perpendicular", 2, 3))
sketch1.addConstraint(Sketcher.Constraint("Perpendicular", 3, 4))
sketch1.addConstraint(Sketcher.Constraint("Parallel", 4, 6))
sketch1.addConstraint(Sketcher.Constraint("Perpendicular", 6, 7))
sketch1.addConstraint(Sketcher.Constraint("Perpendicular", 7, 8))
sketch1.addConstraint(Sketcher.Constraint("Perpendicular", 8, 9))
sketch1.addConstraint(Sketcher.Constraint("Perpendicular", 15, 17))
sketch1.addConstraint(Sketcher.Constraint("Perpendicular", 23, 24))
sketch1.addConstraint(Sketcher.Constraint("Perpendicular", 25, 26))
sketch1.addConstraint(Sketcher.Constraint("Parallel", 26, 28))
sketch1.addConstraint(Sketcher.Constraint("Perpendicular", 31, 33))
sketch1.addConstraint(Sketcher.Constraint("Perpendicular", 9, 35))
sketch1.addConstraint(Sketcher.Constraint("Perpendicular", 39, 40))
sketch1.addConstraint(Sketcher.Constraint("Parallel", 40, 42))
sketch1.addConstraint(Sketcher.Constraint("Perpendicular", 44, 45))
sketch1.addConstraint(Sketcher.Constraint("Perpendicular", 33, 69))
sketch1.addConstraint(Sketcher.Constraint("Perpendicular", 71, 72))
sketch1.addConstraint(Sketcher.Constraint("Parallel", 72, 74))
sketch1.addConstraint(Sketcher.Constraint("Perpendicular", 77, 79))
sketch1.addConstraint(Sketcher.Constraint("Perpendicular", 45, 81))
sketch1.addConstraint(Sketcher.Constraint("Horizontal", 15, 2, 16, 1))
sketch1.addConstraint(Sketcher.Constraint("Horizontal", 14, 1, 17, 2))
sketch1.addConstraint(Sketcher.Constraint("Horizontal", 11, 2, 20, 2))
sketch1.addConstraint(Sketcher.Constraint("Horizontal", 52, 2, 53, 2))
sketch1.addConstraint(Sketcher.Constraint("Horizontal", 51, 2, 54, 2))
sketch1.addConstraint(Sketcher.Constraint("Horizontal", 56, 2, 57, 1))
sketch1.addConstraint(Sketcher.Constraint("Horizontal", 53, 2, 60, 2))
sketch1.addConstraint(Sketcher.Constraint("Horizontal", 49, 2, 64, 1))
sketch1.addConstraint(Sketcher.Constraint("Horizontal", 47, 2, 66, 2))
sketch1.addConstraint(Sketcher.Constraint("Horizontal", 35, 2, 78, 2))
sketch1.addConstraint(Sketcher.Constraint("Horizontal", 33, 2, 80, 1))
sketch1.addConstraint(Sketcher.Constraint("Vertical", 10, 1, 13, 2))
sketch1.addConstraint(Sketcher.Constraint("Vertical", 33, 2, 34, 1))
sketch1.addConstraint(Sketcher.Constraint("Equal", 3, 7))
sketch1.addConstraint(Sketcher.Constraint("Diameter", 85, Q("32 mm")))
sketch1.addConstraint(Sketcher.Constraint("Diameter", 82, Q("7.3 mm")))
sketch1.addConstraint(Sketcher.Constraint("DistanceY", 12, 2, 12, 1, Q("2 mm")))
sketch1.addConstraint(Sketcher.Constraint("Radius", 5, Q("18.15 mm")))
sketch1.addConstraint(Sketcher.Constraint("DistanceX", 11, 1, 11, 2, Q("1.3 mm")))
sketch1.addConstraint(Sketcher.Constraint("DistanceX", 55, 1, 55, 2, Q("1.6 mm")))
sketch1.addConstraint(Sketcher.Constraint("DistanceY", 0, 2, 0, 1, Q("2.9 mm")))
sketch1.addConstraint(Sketcher.Constraint("DistanceY", 52, 2, 52, 1, Q("1.7 mm")))
sketch1.addConstraint(Sketcher.Constraint("Angle", 1, Q("-111.7 deg")))
sketch1.addConstraint(Sketcher.Constraint("Angle", 56, Q("-70.4 deg")))
sketch1.addConstraint(Sketcher.Constraint("Distance", 3, Q("0.6 mm")))
sketch1.addConstraint(Sketcher.Constraint("Distance", 6, Q("3.7 mm")))
sketch1.addConstraint(Sketcher.Constraint("Distance", 8, Q("1.3 mm")))
sketch1.addConstraint(Sketcher.Constraint("Distance", 9, Q("1.5 mm")))
sketch1.addConstraint(Sketcher.Constraint("Distance", 15, Q("5.6 mm")))
sketch1.addConstraint(Sketcher.Constraint("Radius", 10, Q("5.021994 mm")))
sketch1.addConstraint(Sketcher.Constraint("Radius", 53, Q("1.900658 mm")))
sketch1.addConstraint(Sketcher.Constraint("Distance", 33, Q("4.7356 mm")))
sketch1.addConstraint(Sketcher.Constraint("Distance", 1, Q("0.430509 mm")))
sketch1.addConstraint(Sketcher.Constraint("DistanceX", 51, 1, 51, 2, Q("3.680882 mm")))
sketch1.addConstraint(Sketcher.Constraint("DistanceX", -1, 1, 10, 3, Q("16.063049 mm")))
sketch1.addConstraint(Sketcher.Constraint("DistanceY", 10, 3, -1, 1, Q("16.26036 mm")))
sketch1.addConstraint(Sketcher.Constraint("DistanceY", -1, 1, 53, 3, Q("18.009809 mm")))
sketch1.addConstraint(Sketcher.Constraint("DistanceX", 50, 1, -1, 1, Q("13.936329 mm")))
sketch1.addConstraint(Sketcher.Constraint("Distance", 2, Q("1.399154 mm")))
sketch1.addConstraint(Sketcher.Constraint("Distance", 4, Q("3.766954 mm")))
pad1 = doc.addObject("PartDesign::Pad", "Pad")
body.addObject(pad1)
pad1.Profile = sketch1
pad1.Type = "TwoLengths"
pad1.Length = 118.5
pad1.Length2 = 118.5
pad1.Reversed = True

doc.recompute()
